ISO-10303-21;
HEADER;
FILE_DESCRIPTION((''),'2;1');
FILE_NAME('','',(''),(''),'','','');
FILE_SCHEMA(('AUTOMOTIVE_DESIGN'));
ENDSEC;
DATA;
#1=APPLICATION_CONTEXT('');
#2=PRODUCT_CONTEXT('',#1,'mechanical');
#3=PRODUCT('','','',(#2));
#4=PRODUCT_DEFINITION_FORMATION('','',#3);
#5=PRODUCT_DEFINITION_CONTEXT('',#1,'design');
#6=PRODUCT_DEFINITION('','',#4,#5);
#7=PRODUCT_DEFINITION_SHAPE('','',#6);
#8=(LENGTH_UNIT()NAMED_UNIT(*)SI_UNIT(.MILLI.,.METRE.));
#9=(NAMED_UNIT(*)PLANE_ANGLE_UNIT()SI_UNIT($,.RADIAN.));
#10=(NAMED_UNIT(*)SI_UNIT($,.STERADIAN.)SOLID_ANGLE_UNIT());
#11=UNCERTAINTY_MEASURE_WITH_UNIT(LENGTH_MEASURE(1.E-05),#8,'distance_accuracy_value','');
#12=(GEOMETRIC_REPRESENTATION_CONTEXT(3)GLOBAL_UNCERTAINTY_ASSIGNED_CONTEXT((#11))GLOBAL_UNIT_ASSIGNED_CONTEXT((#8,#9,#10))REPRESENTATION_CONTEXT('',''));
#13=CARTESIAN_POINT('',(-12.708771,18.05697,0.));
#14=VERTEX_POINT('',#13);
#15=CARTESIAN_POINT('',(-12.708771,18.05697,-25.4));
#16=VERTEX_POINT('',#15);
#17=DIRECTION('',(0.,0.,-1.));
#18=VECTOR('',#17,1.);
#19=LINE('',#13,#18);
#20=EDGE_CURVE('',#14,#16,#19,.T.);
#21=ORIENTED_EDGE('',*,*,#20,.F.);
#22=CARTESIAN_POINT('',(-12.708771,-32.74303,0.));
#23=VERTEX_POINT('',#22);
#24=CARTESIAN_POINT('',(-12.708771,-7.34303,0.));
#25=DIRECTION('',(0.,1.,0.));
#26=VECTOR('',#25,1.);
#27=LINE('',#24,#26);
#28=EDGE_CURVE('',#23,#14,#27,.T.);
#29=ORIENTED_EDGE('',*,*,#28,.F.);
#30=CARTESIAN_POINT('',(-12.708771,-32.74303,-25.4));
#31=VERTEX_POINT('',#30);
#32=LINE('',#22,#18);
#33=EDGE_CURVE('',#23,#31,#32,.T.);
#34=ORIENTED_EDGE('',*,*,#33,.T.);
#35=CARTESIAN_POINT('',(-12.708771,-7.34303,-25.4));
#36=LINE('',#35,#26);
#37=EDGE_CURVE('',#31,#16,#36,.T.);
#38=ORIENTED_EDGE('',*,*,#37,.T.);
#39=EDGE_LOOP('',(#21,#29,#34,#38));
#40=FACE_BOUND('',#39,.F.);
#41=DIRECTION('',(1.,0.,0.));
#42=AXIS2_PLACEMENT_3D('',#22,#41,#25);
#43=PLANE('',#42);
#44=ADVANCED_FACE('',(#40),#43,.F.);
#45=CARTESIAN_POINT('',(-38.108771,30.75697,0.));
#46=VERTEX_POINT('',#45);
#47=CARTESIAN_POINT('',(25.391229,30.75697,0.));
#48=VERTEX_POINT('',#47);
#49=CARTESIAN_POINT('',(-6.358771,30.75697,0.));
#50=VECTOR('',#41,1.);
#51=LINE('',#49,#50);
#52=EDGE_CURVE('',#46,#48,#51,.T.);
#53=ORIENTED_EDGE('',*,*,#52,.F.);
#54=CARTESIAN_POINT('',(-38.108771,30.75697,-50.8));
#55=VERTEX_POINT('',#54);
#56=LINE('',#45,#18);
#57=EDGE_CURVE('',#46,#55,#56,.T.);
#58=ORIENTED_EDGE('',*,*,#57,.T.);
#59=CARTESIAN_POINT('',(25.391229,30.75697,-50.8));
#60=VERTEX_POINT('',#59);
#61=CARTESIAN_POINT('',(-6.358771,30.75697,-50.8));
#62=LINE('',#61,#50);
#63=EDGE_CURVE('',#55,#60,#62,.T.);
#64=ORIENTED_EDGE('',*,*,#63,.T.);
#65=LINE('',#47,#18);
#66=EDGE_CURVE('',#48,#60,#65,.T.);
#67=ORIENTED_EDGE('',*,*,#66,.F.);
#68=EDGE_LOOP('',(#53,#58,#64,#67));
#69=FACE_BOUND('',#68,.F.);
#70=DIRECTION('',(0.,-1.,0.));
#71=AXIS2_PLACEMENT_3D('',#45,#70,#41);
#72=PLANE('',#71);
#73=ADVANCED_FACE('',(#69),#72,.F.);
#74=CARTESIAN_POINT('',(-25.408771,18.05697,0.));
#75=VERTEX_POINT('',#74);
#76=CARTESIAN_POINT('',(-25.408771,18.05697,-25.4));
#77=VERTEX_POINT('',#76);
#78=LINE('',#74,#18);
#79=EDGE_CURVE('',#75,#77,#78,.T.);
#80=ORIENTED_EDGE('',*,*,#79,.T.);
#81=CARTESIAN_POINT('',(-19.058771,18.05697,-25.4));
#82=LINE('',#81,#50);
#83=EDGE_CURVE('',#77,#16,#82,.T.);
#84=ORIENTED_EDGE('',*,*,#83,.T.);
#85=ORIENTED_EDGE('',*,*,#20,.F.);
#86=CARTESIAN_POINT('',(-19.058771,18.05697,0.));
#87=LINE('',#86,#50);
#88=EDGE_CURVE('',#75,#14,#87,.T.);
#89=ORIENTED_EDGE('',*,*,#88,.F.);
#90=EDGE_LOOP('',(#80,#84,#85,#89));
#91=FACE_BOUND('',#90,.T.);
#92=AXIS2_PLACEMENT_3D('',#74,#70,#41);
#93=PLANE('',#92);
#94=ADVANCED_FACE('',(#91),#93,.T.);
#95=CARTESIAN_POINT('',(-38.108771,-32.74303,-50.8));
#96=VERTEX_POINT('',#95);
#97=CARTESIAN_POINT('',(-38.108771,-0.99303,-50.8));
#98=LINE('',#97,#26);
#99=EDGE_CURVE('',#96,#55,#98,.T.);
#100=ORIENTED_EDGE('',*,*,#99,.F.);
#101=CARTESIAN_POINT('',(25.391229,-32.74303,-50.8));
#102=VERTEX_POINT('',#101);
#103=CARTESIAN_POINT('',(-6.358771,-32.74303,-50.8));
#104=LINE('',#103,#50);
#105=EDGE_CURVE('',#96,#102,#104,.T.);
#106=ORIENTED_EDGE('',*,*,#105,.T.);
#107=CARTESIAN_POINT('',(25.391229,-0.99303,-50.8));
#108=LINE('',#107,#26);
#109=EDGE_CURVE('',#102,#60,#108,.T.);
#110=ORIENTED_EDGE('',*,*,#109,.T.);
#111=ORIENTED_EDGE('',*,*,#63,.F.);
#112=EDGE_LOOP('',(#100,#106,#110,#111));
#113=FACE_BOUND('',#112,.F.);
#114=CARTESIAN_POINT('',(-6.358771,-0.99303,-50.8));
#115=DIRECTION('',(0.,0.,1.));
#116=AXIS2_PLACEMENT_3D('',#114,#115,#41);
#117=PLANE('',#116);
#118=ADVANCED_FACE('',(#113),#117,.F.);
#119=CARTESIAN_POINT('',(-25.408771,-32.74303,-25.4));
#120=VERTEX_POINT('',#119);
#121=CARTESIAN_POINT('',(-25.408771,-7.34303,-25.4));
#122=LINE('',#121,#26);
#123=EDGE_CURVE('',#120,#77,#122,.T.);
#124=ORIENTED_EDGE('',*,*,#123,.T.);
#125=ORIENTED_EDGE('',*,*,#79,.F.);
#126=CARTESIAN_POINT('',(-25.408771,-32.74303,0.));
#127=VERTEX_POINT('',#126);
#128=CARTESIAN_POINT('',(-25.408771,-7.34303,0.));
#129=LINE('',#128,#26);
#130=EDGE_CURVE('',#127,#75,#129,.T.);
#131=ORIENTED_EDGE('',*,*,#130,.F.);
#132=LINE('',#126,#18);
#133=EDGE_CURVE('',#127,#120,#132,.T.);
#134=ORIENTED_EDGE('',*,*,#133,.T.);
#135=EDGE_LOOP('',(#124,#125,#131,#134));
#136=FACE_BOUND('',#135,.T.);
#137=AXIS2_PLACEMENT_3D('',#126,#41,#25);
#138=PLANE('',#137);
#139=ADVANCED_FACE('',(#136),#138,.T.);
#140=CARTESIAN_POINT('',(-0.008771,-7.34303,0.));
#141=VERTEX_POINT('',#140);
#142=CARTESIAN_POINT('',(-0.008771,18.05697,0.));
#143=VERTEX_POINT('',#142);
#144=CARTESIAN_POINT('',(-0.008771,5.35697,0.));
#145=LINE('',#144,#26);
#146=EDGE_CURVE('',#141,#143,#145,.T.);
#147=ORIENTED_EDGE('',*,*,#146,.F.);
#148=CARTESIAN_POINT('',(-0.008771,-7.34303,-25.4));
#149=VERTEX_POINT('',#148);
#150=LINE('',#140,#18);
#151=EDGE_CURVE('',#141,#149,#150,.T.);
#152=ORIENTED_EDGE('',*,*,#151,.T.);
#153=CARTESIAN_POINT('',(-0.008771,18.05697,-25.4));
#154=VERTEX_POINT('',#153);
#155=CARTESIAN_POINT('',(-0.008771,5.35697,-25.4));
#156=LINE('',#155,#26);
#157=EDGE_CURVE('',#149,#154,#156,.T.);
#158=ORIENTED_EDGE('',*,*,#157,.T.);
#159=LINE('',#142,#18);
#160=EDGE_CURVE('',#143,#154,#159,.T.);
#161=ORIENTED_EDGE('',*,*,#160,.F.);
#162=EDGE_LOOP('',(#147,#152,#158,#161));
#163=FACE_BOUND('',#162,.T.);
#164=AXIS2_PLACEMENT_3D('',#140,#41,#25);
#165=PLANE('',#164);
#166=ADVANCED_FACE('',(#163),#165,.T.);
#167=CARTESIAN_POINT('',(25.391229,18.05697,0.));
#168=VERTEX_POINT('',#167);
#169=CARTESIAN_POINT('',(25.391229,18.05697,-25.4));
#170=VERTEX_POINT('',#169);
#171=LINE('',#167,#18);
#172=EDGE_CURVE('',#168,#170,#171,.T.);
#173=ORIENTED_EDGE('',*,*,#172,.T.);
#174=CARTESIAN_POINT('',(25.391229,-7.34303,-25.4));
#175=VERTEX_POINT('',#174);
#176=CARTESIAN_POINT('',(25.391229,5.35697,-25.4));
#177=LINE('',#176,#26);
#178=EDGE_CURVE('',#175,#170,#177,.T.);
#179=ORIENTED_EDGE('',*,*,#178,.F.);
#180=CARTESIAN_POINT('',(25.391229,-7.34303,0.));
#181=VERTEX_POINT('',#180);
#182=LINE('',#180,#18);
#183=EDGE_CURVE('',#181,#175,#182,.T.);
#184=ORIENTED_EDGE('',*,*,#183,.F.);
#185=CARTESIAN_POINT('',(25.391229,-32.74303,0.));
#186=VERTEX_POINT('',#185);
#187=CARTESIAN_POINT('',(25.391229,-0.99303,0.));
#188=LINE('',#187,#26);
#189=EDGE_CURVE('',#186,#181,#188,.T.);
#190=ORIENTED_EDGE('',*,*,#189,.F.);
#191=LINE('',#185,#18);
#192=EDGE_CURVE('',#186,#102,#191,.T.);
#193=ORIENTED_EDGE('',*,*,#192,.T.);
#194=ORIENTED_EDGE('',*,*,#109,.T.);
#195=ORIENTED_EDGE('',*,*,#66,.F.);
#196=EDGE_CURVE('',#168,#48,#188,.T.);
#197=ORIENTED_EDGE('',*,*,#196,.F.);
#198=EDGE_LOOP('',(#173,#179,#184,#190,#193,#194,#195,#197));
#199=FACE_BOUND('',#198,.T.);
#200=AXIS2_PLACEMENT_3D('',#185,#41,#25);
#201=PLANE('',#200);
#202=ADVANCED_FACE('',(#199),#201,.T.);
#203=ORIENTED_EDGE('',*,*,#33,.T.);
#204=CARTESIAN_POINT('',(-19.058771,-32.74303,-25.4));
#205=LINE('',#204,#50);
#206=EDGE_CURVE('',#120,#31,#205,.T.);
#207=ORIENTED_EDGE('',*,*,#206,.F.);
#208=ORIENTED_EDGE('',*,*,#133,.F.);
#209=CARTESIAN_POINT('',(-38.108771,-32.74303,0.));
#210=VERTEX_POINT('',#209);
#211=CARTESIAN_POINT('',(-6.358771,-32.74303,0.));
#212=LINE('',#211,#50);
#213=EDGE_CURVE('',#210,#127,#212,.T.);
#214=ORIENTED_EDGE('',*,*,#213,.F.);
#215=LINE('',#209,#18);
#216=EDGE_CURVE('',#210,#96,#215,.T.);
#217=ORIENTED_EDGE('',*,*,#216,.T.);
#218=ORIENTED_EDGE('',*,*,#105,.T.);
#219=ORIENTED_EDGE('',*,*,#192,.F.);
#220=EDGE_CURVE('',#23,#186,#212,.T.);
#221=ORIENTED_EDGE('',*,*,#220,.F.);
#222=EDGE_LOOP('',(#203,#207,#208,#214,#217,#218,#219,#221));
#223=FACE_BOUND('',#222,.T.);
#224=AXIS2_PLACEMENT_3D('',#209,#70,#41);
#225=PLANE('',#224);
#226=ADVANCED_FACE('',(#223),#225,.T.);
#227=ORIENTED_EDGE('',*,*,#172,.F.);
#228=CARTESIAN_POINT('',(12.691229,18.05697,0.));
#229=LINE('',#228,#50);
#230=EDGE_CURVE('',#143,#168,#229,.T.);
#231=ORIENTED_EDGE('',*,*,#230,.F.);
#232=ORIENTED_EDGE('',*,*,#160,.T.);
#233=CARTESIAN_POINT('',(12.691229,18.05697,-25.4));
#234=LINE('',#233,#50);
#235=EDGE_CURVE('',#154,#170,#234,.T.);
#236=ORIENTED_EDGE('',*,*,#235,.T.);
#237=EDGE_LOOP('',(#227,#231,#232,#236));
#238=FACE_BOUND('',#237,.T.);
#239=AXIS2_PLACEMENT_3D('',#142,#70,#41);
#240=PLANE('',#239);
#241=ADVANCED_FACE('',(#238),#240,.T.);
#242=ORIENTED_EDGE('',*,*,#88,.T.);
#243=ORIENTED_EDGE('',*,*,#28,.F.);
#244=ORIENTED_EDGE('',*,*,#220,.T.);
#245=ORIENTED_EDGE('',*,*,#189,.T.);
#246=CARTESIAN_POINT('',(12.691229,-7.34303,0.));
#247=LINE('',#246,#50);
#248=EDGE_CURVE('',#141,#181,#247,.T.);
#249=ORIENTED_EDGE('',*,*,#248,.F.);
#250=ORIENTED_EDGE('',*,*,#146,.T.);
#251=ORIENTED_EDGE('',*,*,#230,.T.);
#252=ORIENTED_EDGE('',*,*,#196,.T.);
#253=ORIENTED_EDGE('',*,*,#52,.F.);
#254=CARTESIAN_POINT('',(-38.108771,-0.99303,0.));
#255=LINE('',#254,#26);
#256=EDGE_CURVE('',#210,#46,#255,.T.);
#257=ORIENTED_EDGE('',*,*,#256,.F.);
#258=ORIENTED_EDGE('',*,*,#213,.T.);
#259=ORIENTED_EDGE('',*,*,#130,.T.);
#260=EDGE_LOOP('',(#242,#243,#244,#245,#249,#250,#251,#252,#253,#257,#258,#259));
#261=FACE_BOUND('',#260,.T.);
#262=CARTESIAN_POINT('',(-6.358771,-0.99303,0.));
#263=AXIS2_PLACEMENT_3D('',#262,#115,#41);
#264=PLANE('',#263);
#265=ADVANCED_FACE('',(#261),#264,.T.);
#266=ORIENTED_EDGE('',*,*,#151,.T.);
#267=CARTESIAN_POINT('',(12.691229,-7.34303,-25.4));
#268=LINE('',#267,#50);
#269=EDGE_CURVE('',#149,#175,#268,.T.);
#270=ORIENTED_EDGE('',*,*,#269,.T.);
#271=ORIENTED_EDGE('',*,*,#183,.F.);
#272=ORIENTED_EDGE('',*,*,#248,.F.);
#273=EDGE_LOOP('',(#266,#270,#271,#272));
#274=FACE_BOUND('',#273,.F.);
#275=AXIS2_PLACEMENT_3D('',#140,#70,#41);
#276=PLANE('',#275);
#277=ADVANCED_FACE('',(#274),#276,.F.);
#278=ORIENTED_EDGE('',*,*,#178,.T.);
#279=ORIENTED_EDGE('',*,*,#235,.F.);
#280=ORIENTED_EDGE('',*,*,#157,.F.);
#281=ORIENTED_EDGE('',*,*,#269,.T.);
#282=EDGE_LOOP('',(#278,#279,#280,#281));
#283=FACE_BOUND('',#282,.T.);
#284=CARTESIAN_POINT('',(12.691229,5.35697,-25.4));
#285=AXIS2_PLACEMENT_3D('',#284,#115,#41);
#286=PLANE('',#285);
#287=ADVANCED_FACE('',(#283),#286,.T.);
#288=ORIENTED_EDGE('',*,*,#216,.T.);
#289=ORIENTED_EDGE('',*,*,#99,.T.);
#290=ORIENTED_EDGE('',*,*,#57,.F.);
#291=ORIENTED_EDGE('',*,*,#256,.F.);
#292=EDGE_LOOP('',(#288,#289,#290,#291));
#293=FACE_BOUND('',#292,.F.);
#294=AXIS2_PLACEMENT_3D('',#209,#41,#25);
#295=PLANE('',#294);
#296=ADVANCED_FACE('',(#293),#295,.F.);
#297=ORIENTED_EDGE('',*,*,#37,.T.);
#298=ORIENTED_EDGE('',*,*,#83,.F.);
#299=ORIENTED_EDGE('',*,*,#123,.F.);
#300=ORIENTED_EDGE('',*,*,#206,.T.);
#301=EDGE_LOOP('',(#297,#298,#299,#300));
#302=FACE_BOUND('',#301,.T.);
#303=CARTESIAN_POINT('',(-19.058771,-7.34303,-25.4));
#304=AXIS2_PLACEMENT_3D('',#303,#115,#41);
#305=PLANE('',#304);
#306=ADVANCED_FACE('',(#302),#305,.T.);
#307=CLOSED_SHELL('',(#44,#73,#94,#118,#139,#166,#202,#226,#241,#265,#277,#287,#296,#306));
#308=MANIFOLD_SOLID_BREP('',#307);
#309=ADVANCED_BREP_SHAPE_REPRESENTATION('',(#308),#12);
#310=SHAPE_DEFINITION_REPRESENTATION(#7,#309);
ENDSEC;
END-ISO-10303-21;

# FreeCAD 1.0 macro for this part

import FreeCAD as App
import Part
import Sketcher
Q = App.Units.Quantity

doc = App.newDocument("Part")
params = doc.addObject("Spreadsheet::Sheet", "Params")
for row, (alias, value) in enumerate([
    ("sketch1_width", "2.5 in"),
    ("pad1_length", "2 in"),
    ("sketch2_height", "2 in"),
    ("sketch2_width", "0.5 in"),
    ("pocket1_length", "1 in"),
    ("sketch3_width", "1 in"),
    ("pocket2_length", "1 in"),
], start=1):
    params.set(f"A{row}", alias)
    params.set(f"B{row}", "=" + value)
    params.setAlias(f"B{row}", alias)

body = doc.addObject("PartDesign::Body", "Body")

sketch1 = doc.addObject("Sketcher::SketchObject", "Sketch")
body.addObject(sketch1)
sketch1.AttachmentSupport = (doc.XY_Plane, [""])
sketch1.MapMode = "FlatFace"
sketch1.addGeometry([
    Part.LineSegment(App.Vector(-38, 31, 0), App.Vector(-38, -33, 0)),
    Part.LineSegment(App.Vector(-38, -33, 0), App.Vector(25, -33, 0)),
    Part.LineSegment(App.Vector(25, -33, 0), App.Vector(25, 31, 0)),
    Part.LineSegment(App.Vector(25, 31, 0), App.Vector(-38, 31, 0)),
], False)
sketch1.addConstraint([
    Sketcher.Constraint("Coincident", 0, 2, 1, 1),
    Sketcher.Constraint("Coincident", 1, 2, 2, 1),
    Sketcher.Constraint("Coincident", 2, 2, 3, 1),
    Sketcher.Constraint("Coincident", 3, 2, 0, 1),
    Sketcher.Constraint("Vertical", 0),
    Sketcher.Constraint("Horizontal", 1),
    Sketcher.Constraint("Vertical", 2),
    Sketcher.Constraint("Horizontal", 3),
    Sketcher.Constraint("Equal", 3, 0),
    Sketcher.Constraint("DistanceX", 1, 1, 1, 2, Q("2.5 in")),
    Sketcher.Constraint("DistanceX", 0, 2, -1, 1, Q("38.108771 mm")),
    Sketcher.Constraint("DistanceY", 0, 2, -1, 1, Q("32.74303 mm")),
])
sketch1.setExpression("Constraints[9]", "Params.sketch1_width")
pad1 = doc.addObject("PartDesign::Pad", "Pad")
body.addObject(pad1)
pad1.Profile = sketch1
pad1.setExpression("Length", "Params.pad1_length")
pad1.Reversed = True

sketch2 = doc.addObject("Sketcher::SketchObject", "Sketch001")
body.addObject(sketch2)
sketch2.AttachmentSupport = (doc.XY_Plane, [""])
sketch2.MapMode = "FlatFace"
sketch2.addGeometry([
    Part.LineSegment(App.Vector(-25, 18, 0), App.Vector(-25, -33, 0)),
    Part.LineSegment(App.Vector(-25, -33, 0), App.Vector(-13, -33, 0)),
    Part.LineSegment(App.Vector(-13, -33, 0), App.Vector(-13, 18, 0)),
    Part.LineSegment(App.Vector(-13, 18, 0), App.Vector(-25, 18, 0)),
], False)
sketch2.addConstraint([
    Sketcher.Constraint("Coincident", 0, 2, 1, 1),
    Sketcher.Constraint("Coincident", 1, 2, 2, 1),
    Sketcher.Constraint("Coincident", 2, 2, 3, 1),
    Sketcher.Constraint("Coincident", 3, 2, 0, 1),
    Sketcher.Constraint("Vertical", 0),
    Sketcher.Constraint("Horizontal", 1),
    Sketcher.Constraint("Vertical", 2),
    Sketcher.Constraint("Horizontal", 3),
    Sketcher.Constraint("DistanceY", 0, 2, 0, 1, Q("2 in")),
    Sketcher.Constraint("DistanceX", 1, 1, 1, 2, Q("0.5 in")),
    Sketcher.Constraint("DistanceX", 0, 2, -1, 1, Q("25.408771 mm")),
    Sketcher.Constraint("DistanceY", 0, 2, -1, 1, Q("32.74303 mm")),
])
sketch2.setExpression("Constraints[8]", "Params.sketch2_height")
sketch2.setExpression("Constraints[9]", "Params.sketch2_width")
pocket1 = doc.addObject("PartDesign::Pocket", "Pocket")
body.addObject(pocket1)
pocket1.Profile = sketch2
pocket1.setExpression("Length", "Params.pocket1_length")

sketch3 = doc.addObject("Sketcher::SketchObject", "Sketch002")
body.addObject(sketch3)
sketch3.AttachmentSupport = (doc.XY_Plane, [""])
sketch3.MapMode = "FlatFace"
sketch3.addGeometry([
    Part.LineSegment(App.Vector(0, 18, 0), App.Vector(0, -7, 0)),
    Part.LineSegment(App.Vector(0, -7, 0), App.Vector(25, -7, 0)),
    Part.LineSegment(App.Vector(25, -7, 0), App.Vector(25, 18, 0)),
    Part.LineSegment(App.Vector(25, 18, 0), App.Vector(0, 18, 0)),
], False)
sketch3.addConstraint([
    Sketcher.Constraint("Coincident", 0, 2, 1, 1),
    Sketcher.Constraint("Coincident", 1, 2, 2, 1),
    Sketcher.Constraint("Coincident", 2, 2, 3, 1),
    Sketcher.Constraint("Coincident", 3, 2, 0, 1),
    Sketcher.Constraint("Vertical", 0),
    Sketcher.Constraint("Horizontal", 1),
    Sketcher.Constraint("Vertical", 2),
    Sketcher.Constraint("Horizontal", 3),
    Sketcher.Constraint("Equal", 3, 0),
    Sketcher.Constraint("DistanceX", 1, 1, 1, 2, Q("1 in")),
    Sketcher.Constraint("DistanceX", 0, 2, -1, 1, Q("0.008771 mm")),
    Sketcher.Constraint("DistanceY", 0, 2, -1, 1, Q("7.34303 mm")),
])
sketch3.setExpression("Constraints[9]", "Params.sketch3_width")
pocket2 = doc.addObject("PartDesign::Pocket", "Pocket001")
body.addObject(pocket2)
pocket2.Profile = sketch3
pocket2.setExpression("Length", "Params.pocket2_length")

doc.recompute()
